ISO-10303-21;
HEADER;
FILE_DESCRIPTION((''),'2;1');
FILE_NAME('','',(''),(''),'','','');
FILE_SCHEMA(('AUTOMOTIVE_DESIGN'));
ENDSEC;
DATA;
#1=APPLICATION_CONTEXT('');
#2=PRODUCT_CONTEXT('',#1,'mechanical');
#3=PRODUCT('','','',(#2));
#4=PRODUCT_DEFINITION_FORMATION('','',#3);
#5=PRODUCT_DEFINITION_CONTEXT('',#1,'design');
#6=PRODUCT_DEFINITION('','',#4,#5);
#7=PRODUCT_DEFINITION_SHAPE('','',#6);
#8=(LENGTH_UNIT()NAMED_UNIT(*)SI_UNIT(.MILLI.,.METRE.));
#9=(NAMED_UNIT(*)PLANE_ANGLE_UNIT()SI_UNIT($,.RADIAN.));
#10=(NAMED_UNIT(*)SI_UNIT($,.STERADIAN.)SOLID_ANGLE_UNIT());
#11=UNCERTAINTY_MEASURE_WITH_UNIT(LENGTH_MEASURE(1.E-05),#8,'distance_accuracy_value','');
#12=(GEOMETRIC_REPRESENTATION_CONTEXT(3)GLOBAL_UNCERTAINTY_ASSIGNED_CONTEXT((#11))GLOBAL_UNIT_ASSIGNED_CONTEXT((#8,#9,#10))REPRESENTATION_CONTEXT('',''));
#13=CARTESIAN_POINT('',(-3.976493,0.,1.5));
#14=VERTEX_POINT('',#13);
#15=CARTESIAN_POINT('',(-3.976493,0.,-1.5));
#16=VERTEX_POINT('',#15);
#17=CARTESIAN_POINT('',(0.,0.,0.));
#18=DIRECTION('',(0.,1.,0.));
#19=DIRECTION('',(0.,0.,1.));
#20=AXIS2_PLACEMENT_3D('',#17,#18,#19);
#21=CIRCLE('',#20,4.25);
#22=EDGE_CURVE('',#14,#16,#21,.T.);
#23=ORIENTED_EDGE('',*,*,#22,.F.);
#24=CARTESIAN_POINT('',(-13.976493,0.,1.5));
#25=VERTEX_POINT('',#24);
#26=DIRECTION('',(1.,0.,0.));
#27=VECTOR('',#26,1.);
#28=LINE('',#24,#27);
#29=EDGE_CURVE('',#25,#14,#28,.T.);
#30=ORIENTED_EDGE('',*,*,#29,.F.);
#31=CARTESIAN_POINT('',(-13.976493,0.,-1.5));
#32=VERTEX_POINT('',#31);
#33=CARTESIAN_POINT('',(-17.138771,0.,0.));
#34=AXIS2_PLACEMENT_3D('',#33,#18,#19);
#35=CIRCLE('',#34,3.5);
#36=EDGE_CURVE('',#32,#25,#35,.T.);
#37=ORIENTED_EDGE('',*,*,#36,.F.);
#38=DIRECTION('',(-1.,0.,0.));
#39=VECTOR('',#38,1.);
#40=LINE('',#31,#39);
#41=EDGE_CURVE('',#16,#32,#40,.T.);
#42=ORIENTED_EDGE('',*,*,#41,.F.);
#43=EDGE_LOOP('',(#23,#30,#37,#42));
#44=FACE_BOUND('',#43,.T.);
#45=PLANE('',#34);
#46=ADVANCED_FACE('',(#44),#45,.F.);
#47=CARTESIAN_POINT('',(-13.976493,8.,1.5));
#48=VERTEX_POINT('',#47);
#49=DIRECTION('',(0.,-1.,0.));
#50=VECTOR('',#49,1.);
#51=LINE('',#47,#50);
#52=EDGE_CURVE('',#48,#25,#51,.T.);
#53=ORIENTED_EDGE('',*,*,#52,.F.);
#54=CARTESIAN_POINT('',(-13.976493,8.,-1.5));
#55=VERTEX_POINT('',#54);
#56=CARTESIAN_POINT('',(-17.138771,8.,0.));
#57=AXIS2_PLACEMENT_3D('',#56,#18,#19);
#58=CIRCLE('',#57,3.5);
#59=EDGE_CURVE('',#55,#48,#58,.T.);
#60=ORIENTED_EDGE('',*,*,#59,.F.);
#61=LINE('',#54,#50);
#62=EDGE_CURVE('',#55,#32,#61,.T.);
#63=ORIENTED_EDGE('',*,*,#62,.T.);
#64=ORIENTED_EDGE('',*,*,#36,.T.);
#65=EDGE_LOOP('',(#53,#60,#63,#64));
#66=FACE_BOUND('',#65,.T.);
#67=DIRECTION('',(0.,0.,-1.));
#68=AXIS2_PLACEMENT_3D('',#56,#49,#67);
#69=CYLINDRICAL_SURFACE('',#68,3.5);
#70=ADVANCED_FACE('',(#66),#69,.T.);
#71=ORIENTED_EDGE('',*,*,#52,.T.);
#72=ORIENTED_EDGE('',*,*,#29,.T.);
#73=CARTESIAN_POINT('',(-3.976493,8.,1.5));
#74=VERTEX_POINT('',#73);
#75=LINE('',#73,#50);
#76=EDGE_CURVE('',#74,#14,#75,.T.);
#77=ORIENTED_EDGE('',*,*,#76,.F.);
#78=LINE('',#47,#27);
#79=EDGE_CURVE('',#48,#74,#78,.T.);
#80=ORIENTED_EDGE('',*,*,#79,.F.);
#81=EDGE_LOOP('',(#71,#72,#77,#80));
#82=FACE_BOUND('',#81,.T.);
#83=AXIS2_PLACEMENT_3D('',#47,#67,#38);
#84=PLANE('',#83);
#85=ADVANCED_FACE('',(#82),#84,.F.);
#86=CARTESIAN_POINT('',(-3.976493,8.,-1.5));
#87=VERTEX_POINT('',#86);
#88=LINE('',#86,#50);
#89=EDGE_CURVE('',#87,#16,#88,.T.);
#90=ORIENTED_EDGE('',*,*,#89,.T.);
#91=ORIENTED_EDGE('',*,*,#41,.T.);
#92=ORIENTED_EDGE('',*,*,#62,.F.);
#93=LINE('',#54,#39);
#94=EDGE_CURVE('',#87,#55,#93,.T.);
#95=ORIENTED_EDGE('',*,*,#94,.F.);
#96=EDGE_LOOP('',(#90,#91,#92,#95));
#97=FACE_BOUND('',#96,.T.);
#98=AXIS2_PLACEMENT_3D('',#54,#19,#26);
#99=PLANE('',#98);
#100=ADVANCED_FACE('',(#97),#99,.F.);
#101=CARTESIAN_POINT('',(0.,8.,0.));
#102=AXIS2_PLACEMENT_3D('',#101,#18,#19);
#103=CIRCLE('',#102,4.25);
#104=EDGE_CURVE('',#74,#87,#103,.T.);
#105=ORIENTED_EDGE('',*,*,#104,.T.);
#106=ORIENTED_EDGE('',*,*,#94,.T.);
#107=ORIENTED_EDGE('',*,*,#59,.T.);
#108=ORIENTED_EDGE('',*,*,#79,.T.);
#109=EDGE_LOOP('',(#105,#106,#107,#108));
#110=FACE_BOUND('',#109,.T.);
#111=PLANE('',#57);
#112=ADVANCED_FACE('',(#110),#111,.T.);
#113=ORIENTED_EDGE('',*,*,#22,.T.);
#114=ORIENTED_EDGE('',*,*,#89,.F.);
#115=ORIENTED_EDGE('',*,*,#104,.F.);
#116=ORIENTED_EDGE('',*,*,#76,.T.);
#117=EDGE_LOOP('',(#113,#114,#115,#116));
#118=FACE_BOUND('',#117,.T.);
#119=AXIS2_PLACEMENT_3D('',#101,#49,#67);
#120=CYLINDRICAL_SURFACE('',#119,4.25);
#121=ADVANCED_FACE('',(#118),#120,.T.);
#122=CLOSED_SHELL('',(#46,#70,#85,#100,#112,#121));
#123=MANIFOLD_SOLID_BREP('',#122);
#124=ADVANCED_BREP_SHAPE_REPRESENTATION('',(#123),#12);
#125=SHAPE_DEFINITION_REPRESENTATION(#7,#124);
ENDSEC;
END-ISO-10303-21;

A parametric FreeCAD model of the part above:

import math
import FreeCAD as App
import Part
import Sketcher
Q = App.Units.Quantity

doc = App.newDocument("Part")
body = doc.addObject("PartDesign::Body", "Body")

# Sketch on XZ plane
sketch1 = body.newObject("Sketcher::SketchObject", "Sketch")
sketch1.AttachmentSupport = (doc.getObject("XZ_Plane"), [""])
sketch1.MapMode = "FlatFace"
sketch1.addGeometry(Part.LineSegment(App.Vector(-4, -1.5, 0), App.Vector(-14, -1.5, 0)), False)
sketch1.addGeometry(Part.ArcOfCircle(Part.Circle(App.Vector(-17.1, 0, 0), App.Vector(0, 0, 1), 3.5), math.radians(25), math.radians(335)), False)
sketch1.addGeometry(Part.LineSegment(App.Vector(-14, 1.5, 0), App.Vector(-4, 1.5, 0)), False)
sketch1.addGeometry(Part.ArcOfCircle(Part.Circle(App.Vector(0, 0, 0), App.Vector(0, 0, 1), 4.2), math.radians(-159), math.radians(159)), False)
sketch1.addConstraint(Sketcher.Constraint("Coincident", 0, 2, 1, 2))
sketch1.addConstraint(Sketcher.Constraint("Coincident", 1, 1, 2, 1))
sketch1.addConstraint(Sketcher.Constraint("Coincident", 2, 2, 3, 2))
sketch1.addConstraint(Sketcher.Constraint("Coincident", 3, 1, 0, 1))
sketch1.addConstraint(Sketcher.Constraint("Horizontal", 0))
sketch1.addConstraint(Sketcher.Constraint("Horizontal", 2))
sketch1.addConstraint(Sketcher.Constraint("Coincident", 3, 3, -1, 1))
sketch1.addConstraint(Sketcher.Constraint("Symmetric", 0, 2, 1, 1, -1))
sketch1.addConstraint(Sketcher.Constraint("Radius", 1, Q("3.5 mm")))
sketch1.addConstraint(Sketcher.Constraint("DistanceX", 0, 2, 0, 1, Q("10 mm")))
sketch1.addConstraint(Sketcher.Constraint("Radius", 3, Q("4.25 mm")))
sketch1.addConstraint(Sketcher.Constraint("DistanceY", 0, 2, 1, 1, Q("3 mm")))
pad1 = body.newObject("PartDesign::Pad", "Pad")
pad1.Profile = sketch1
pad1.Length = 8
pad1.Reversed = True

doc.recompute()
